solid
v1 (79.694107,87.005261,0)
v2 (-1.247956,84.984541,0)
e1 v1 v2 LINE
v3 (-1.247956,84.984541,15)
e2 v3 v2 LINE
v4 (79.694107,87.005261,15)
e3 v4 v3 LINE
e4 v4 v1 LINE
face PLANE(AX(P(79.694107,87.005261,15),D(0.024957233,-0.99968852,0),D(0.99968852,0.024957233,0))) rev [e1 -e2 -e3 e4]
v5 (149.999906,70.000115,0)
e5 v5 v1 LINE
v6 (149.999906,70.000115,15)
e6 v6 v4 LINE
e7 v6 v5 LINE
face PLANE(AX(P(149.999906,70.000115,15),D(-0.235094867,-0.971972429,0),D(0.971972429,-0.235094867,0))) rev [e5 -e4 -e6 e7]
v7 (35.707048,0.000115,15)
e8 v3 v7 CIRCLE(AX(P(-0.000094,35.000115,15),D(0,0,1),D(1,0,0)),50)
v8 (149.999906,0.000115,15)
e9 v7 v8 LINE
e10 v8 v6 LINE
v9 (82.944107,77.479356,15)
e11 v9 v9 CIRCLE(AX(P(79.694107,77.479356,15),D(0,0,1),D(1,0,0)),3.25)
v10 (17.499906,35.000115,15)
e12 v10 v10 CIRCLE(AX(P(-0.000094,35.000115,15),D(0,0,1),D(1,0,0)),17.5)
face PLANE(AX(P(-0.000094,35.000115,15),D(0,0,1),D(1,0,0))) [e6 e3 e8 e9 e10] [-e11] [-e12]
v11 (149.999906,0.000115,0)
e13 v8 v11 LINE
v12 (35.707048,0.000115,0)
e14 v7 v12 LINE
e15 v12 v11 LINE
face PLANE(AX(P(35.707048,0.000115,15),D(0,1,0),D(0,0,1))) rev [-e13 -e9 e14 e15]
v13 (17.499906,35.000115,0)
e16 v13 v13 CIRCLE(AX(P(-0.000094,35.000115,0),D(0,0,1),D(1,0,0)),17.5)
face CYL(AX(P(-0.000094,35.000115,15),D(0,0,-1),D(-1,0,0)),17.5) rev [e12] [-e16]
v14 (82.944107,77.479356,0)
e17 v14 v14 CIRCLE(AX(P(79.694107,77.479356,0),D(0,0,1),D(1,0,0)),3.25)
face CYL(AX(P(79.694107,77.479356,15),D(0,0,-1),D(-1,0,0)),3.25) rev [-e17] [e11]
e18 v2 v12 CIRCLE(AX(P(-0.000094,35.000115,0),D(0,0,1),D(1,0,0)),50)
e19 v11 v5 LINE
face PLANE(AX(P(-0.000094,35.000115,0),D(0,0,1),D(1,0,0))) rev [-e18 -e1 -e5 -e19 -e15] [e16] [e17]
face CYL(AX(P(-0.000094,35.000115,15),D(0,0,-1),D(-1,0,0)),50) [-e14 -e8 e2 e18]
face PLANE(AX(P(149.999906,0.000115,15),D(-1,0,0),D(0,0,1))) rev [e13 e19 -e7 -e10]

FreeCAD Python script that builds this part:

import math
import FreeCAD as App
import Part
import Sketcher

V = App.Vector
Q = App.Units.Quantity

doc = App.newDocument("Part")
body = doc.addObject("PartDesign::Body", "Body")

# Sketch on XY plane
sketch1 = body.newObject("Sketcher::SketchObject", "Sketch")
sketch1.AttachmentSupport = (doc.getObject("XY_Plane"), [""])
sketch1.MapMode = "FlatFace"
sketch1.addGeometry([
    Part.LineSegment(V(150, 70, 0), V(79.7, 87, 0)),  # 0
    Part.LineSegment(V(79.7, 87, 0), V(-1.2, 85, 0)),  # 1
    Part.ArcOfCircle(Part.Circle(V(0, 35, 0), V(0, 0, 1), 50), math.radians(91), math.radians(316)),  # 2
    Part.LineSegment(V(35.7, 0, 0), V(150, 0, 0)),  # 3
    Part.LineSegment(V(150, 0, 0), V(150, 70, 0)),  # 4
    Part.Circle(V(0, 35, 0), V(0, 0, 1), 17.5),  # 5
    Part.Circle(V(79.7, 77.5, 0), V(0, 0, 1), 3.2),  # 6
], False)
sketch1.addConstraint([
    Sketcher.Constraint("Coincident", 0, 2, 1, 1),
    Sketcher.Constraint("Tangent", 1, 2, 2, 1),
    Sketcher.Constraint("Coincident", 2, 2, 3, 1),
    Sketcher.Constraint("Coincident", 3, 2, 4, 1),
    Sketcher.Constraint("Coincident", 4, 2, 0, 1),
    Sketcher.Constraint("Horizontal", 3),
    Sketcher.Constraint("Vertical", 4),
    Sketcher.Constraint("Coincident", 5, 3, 2, 3),
    Sketcher.Constraint("Vertical", 6, 3, 0, 2),
    Sketcher.Constraint("Diameter", 5, Q("35 mm")),
    Sketcher.Constraint("Radius", 2, Q("50 mm")),
    Sketcher.Constraint("Diameter", 6, Q("6.5 mm")),
    Sketcher.Constraint("DistanceY", 4, 1, 4, 2, Q("70 mm")),
    Sketcher.Constraint("DistanceY", 2, 2, 5, 3, Q("35 mm")),
    Sketcher.Constraint("DistanceX", 5, 3, 3, 2, Q("150 mm")),
    Sketcher.Constraint("DistanceX", 5, 3, 6, 3, Q("79.694201 mm")),
    Sketcher.Constraint("Distance", 0, Q("72.333121 mm")),
    Sketcher.Constraint("DistanceY", -1, 1, 0, 2, Q("87.005261 mm")),
    Sketcher.Constraint("DistanceY", 5, 3, 6, 3, Q("42.479241 mm")),
    Sketcher.Constraint("DistanceX", -1, 1, 6, 3, Q("79.694107 mm")),
])
pad1 = body.newObject("PartDesign::Pad", "Pad")
pad1.Profile = sketch1
pad1.Length = 15

doc.recompute()
